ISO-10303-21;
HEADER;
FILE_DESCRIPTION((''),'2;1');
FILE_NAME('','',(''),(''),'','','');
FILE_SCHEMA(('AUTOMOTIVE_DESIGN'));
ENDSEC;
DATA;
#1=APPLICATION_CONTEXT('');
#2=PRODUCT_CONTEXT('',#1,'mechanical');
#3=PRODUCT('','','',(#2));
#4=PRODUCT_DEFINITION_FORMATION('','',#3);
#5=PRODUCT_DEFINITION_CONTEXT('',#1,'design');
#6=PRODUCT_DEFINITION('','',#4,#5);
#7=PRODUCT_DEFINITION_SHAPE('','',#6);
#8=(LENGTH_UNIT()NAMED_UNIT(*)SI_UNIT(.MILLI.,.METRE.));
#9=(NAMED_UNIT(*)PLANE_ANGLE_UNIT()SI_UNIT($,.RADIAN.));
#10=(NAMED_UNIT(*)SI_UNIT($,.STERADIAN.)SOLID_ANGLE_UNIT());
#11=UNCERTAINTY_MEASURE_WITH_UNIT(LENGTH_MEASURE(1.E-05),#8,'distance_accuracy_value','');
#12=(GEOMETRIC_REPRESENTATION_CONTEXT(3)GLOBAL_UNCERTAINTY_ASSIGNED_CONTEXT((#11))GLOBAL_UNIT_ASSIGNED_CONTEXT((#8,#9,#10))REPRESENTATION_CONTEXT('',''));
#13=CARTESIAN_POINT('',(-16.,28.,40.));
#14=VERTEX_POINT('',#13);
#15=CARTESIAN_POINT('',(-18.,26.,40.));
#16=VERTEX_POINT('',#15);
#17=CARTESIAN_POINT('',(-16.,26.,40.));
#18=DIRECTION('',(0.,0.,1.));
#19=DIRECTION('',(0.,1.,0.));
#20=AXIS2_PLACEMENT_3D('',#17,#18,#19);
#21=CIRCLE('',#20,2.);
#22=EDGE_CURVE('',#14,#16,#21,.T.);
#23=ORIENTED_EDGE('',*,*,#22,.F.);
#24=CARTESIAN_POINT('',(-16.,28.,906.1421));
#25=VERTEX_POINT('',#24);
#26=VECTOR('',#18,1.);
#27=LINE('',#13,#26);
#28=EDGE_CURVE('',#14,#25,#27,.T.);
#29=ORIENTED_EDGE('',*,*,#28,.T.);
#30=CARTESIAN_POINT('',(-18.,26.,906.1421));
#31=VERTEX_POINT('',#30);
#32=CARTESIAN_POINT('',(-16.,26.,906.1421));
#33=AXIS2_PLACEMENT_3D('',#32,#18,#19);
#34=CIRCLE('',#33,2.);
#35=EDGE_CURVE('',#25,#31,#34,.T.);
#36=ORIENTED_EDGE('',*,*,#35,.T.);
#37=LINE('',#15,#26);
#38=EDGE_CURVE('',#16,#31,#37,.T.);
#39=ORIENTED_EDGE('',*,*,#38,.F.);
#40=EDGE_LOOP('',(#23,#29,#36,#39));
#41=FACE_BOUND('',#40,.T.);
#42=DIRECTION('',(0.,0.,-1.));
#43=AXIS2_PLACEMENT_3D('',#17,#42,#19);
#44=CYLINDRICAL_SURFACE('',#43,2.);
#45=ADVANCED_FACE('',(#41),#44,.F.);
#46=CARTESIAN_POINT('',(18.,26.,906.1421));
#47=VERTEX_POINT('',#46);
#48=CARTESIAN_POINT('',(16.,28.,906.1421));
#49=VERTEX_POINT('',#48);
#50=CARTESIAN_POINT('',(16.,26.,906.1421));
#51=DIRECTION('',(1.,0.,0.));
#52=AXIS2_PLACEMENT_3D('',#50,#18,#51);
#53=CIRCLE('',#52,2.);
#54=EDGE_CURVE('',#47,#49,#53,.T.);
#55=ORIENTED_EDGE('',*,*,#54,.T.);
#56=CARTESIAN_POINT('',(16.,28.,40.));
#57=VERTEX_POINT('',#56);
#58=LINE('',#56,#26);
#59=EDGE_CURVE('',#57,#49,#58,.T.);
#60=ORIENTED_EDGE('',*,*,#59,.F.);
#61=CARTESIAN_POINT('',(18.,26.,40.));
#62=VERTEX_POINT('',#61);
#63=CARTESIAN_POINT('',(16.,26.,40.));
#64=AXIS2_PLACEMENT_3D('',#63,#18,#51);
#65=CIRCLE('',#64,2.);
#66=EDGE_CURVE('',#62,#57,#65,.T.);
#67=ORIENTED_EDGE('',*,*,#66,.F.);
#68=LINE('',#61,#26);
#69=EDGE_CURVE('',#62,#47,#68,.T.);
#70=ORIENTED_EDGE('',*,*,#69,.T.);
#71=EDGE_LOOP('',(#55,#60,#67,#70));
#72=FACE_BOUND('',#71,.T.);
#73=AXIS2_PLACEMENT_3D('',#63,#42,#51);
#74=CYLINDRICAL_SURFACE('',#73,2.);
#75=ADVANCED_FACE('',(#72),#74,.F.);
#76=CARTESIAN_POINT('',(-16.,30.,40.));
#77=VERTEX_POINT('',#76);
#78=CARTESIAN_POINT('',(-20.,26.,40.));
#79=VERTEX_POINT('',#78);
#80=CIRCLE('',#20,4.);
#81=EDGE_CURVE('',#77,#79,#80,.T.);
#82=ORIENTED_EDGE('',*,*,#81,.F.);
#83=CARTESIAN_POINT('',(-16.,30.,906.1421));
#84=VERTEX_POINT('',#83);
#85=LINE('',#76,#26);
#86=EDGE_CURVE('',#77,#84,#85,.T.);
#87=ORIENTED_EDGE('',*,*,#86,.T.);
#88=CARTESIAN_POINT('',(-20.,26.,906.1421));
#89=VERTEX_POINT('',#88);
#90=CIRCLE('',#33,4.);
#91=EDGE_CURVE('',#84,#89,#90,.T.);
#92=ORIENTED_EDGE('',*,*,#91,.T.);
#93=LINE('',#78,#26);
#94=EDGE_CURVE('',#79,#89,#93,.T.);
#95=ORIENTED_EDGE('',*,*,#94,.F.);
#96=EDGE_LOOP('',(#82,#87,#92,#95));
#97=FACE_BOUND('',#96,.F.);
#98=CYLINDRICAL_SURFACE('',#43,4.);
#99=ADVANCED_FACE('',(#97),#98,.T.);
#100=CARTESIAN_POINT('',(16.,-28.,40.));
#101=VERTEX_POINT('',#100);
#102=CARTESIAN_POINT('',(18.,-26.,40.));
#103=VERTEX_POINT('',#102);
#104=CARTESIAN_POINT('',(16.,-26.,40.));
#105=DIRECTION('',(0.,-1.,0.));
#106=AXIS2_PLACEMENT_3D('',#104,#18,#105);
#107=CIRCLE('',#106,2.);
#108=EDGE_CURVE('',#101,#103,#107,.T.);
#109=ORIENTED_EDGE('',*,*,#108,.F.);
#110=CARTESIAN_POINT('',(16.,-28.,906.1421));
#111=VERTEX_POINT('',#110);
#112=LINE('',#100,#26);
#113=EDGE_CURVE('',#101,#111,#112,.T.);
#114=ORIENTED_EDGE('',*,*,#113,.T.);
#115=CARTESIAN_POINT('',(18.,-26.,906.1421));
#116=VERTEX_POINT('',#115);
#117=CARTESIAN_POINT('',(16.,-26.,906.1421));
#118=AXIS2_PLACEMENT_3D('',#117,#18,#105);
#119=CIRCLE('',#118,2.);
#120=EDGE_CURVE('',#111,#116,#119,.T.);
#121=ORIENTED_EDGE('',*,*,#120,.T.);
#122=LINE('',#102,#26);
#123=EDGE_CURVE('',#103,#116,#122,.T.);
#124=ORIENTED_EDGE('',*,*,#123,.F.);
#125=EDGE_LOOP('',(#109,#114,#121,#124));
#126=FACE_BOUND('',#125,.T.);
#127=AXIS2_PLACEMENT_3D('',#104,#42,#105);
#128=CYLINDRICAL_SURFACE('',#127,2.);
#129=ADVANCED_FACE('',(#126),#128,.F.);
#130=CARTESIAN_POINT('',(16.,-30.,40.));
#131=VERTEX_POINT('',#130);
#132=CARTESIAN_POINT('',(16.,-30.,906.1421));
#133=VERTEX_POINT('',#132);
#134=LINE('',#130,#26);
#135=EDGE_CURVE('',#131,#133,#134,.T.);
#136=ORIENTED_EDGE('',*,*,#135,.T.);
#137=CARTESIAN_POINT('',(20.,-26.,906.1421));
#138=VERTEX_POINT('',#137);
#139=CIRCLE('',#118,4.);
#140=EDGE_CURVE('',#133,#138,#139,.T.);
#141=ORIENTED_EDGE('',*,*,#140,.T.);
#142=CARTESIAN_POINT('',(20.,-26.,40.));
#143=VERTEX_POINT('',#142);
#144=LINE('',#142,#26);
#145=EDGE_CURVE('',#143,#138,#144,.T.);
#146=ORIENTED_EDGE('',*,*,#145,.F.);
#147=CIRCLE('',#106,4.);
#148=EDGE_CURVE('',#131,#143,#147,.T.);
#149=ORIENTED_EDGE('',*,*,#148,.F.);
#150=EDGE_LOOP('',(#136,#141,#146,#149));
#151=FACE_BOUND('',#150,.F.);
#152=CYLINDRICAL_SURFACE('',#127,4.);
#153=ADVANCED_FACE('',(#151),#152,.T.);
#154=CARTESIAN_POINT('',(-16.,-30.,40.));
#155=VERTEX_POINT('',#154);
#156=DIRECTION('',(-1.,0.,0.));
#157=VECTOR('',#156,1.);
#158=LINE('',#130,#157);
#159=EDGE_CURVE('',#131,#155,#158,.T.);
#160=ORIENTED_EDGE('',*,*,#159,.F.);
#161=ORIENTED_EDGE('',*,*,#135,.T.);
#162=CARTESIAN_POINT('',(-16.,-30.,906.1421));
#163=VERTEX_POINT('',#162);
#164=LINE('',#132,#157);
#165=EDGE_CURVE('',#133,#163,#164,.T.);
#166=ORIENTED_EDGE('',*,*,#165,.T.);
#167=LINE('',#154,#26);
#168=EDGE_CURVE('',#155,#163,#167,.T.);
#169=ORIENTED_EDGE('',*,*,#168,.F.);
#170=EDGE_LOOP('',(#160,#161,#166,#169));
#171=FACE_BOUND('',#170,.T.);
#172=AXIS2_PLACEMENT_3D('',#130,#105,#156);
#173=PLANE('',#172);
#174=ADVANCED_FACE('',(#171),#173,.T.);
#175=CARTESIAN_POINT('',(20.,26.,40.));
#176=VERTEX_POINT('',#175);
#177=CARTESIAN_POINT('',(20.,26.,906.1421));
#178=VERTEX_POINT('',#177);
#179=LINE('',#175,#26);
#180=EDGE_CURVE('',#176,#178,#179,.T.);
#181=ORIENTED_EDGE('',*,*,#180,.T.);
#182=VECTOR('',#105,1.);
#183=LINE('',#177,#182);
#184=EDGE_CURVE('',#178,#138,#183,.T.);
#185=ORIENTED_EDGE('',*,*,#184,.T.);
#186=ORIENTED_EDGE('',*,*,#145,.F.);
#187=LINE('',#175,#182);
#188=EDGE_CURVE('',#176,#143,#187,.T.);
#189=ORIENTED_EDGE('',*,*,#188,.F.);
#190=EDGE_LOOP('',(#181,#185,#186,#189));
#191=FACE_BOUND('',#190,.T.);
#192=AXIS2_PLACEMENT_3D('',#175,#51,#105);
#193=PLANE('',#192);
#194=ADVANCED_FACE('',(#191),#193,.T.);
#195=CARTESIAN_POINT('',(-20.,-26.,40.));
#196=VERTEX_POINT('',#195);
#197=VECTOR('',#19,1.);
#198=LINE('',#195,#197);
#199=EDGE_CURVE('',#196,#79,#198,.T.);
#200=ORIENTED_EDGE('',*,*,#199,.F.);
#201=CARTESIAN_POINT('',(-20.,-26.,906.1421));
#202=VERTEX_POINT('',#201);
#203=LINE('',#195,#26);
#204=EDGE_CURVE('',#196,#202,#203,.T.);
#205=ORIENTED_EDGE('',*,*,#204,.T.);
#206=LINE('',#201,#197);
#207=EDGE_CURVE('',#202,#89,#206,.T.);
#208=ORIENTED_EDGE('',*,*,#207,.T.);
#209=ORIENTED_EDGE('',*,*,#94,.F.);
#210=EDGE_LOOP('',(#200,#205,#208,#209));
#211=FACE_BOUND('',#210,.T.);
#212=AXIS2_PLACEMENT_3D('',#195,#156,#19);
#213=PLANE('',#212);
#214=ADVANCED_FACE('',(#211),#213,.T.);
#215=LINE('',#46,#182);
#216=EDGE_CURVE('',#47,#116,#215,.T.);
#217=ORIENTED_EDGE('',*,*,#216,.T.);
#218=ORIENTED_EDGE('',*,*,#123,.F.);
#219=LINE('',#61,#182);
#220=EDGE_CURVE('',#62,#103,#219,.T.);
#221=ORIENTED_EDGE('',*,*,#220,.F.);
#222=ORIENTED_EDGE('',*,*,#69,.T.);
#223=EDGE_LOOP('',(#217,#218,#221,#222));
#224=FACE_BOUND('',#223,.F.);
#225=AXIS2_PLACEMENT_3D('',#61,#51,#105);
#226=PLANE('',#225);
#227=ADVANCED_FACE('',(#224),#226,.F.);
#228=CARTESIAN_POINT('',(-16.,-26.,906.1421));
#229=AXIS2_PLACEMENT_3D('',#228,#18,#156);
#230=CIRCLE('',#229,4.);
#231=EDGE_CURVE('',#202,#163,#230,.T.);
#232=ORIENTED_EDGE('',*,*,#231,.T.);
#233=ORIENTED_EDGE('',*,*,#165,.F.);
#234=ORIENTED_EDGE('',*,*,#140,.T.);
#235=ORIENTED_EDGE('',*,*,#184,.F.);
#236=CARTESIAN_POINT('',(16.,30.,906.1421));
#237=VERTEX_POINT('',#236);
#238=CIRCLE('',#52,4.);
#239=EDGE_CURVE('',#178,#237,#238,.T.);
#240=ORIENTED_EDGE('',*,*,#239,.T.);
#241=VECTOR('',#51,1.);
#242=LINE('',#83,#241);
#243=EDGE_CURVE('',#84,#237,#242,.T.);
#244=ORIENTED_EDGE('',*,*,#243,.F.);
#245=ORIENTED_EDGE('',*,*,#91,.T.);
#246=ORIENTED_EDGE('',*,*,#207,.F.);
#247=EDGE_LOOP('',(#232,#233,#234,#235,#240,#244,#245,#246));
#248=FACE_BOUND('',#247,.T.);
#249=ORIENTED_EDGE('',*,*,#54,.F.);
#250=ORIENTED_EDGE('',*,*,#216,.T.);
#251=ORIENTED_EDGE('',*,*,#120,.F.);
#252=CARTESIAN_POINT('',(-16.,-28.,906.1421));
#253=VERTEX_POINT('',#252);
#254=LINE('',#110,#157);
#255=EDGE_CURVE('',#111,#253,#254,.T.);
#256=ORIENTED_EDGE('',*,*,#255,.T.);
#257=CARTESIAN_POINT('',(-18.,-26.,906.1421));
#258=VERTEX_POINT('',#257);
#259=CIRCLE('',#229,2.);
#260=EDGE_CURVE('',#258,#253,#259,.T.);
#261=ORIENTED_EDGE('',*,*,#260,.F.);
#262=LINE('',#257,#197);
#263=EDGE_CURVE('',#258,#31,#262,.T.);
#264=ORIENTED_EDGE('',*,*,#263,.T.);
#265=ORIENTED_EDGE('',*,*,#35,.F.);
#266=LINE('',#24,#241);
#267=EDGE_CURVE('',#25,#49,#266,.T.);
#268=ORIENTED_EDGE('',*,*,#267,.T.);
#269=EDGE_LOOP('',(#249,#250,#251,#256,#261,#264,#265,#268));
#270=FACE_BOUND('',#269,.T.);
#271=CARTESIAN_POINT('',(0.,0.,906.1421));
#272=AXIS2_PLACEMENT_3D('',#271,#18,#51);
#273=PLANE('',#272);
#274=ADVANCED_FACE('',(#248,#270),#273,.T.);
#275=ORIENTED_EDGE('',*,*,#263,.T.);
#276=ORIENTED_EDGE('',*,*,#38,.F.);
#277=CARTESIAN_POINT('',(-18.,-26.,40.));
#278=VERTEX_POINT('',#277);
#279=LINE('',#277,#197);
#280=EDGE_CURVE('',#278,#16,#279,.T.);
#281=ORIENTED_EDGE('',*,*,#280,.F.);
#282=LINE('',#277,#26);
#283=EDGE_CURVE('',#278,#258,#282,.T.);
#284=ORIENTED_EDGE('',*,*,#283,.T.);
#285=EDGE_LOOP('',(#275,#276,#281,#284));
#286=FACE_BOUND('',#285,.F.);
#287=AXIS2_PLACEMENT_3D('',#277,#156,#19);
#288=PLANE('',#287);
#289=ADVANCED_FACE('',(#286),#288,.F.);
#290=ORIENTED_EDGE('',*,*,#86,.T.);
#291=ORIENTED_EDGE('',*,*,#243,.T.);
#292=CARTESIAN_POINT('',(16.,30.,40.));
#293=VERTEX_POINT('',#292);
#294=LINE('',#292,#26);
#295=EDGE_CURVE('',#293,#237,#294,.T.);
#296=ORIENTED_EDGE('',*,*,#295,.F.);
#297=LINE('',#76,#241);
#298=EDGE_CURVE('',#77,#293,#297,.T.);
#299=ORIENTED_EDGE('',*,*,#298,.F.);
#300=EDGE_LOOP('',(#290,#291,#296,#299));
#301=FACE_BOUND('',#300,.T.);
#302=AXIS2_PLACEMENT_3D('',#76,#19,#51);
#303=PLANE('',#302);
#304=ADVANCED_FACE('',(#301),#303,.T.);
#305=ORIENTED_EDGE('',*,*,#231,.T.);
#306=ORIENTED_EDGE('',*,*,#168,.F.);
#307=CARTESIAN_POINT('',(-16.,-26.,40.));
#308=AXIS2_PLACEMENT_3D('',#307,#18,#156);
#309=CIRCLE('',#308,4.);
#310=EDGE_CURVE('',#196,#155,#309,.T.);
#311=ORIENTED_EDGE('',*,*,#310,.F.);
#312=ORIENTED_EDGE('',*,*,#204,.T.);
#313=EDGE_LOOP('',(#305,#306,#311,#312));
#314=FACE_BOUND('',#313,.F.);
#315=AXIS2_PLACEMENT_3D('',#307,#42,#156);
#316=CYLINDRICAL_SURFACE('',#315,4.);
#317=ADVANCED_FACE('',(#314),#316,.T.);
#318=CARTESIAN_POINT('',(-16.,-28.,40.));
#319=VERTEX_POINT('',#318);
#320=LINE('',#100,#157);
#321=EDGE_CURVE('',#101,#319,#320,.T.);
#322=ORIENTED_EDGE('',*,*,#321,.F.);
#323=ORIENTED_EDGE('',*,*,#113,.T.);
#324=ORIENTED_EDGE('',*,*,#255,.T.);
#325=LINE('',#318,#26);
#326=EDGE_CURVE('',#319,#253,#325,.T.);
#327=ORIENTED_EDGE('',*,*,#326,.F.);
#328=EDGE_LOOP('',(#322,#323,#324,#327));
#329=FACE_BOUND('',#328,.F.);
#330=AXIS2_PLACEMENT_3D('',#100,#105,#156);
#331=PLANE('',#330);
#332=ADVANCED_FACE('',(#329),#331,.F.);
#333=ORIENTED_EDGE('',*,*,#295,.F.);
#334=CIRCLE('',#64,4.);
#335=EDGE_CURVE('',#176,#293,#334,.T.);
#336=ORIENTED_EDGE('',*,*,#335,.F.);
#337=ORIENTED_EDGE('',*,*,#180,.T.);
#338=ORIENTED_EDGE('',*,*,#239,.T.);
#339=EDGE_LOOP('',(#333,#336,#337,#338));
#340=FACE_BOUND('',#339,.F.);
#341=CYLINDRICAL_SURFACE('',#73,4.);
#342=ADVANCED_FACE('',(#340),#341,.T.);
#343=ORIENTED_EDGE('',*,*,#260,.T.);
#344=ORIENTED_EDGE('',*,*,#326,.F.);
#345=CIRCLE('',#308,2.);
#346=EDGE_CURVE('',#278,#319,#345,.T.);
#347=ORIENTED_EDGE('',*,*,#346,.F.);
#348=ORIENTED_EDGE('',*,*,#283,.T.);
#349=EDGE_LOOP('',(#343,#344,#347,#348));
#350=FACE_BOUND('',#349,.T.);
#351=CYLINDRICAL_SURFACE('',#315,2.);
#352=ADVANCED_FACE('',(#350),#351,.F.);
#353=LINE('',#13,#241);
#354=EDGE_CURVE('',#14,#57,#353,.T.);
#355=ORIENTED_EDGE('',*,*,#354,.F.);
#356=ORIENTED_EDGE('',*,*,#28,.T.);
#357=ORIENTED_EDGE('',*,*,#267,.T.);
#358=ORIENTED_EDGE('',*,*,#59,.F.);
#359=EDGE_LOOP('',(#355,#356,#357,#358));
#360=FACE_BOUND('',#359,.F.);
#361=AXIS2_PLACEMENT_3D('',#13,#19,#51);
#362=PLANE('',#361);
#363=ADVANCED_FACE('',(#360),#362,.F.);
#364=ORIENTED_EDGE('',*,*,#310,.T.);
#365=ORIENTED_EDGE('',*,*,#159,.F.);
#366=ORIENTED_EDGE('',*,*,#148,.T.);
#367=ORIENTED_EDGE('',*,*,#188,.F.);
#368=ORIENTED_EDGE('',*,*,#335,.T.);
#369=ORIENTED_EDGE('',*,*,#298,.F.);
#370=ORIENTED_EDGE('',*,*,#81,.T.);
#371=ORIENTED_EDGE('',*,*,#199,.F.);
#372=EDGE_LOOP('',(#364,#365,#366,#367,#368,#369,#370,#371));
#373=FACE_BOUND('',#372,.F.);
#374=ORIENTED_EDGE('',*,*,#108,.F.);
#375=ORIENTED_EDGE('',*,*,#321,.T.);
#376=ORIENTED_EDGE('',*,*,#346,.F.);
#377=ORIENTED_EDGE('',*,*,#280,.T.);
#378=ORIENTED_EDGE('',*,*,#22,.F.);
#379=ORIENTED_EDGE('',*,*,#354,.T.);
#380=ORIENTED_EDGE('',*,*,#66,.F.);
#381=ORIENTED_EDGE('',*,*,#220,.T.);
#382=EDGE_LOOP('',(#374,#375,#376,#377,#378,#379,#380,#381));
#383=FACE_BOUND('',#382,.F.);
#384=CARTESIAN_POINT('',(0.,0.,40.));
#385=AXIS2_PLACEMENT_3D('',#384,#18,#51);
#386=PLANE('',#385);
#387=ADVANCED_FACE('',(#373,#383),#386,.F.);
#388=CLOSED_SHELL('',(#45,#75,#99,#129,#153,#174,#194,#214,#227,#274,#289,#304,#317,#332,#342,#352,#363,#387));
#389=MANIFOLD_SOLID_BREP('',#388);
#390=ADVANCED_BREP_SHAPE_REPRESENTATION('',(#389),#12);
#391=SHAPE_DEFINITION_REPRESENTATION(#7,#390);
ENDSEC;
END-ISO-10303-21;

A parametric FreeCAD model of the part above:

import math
import FreeCAD as App
import Part
import Sketcher

doc = App.newDocument("Part")
body = doc.addObject("PartDesign::Body", "Body")

# Sketch on XY plane
sketch1 = body.newObject("Sketcher::SketchObject", "Sketch")
sketch1.AttachmentSupport = (doc.getObject("XY_Plane"), [""])
sketch1.MapMode = "FlatFace"
sketch1.AttachmentOffset = App.Placement(App.Vector(0, 0, 40), App.Rotation())
sketch1.addGeometry([
    Part.LineSegment(App.Vector(-20, 26, 0), App.Vector(-20, -26, 0)),  # 0
    Part.ArcOfCircle(Part.Circle(App.Vector(-16, -26, 0), App.Vector(0, 0, 1), 4), math.radians(180), math.radians(270)),  # 1
    Part.LineSegment(App.Vector(-16, -30, 0), App.Vector(16, -30, 0)),  # 2
    Part.ArcOfCircle(Part.Circle(App.Vector(16, -26, 0), App.Vector(0, 0, 1), 4), math.radians(-90), math.radians(0)),  # 3
    Part.LineSegment(App.Vector(20, -26, 0), App.Vector(20, 26, 0)),  # 4
    Part.ArcOfCircle(Part.Circle(App.Vector(16, 26, 0), App.Vector(0, 0, 1), 4), math.radians(0), math.radians(90)),  # 5
    Part.LineSegment(App.Vector(16, 30, 0), App.Vector(-16, 30, 0)),  # 6
    Part.ArcOfCircle(Part.Circle(App.Vector(-16, 26, 0), App.Vector(0, 0, 1), 4), math.radians(90), math.radians(180)),  # 7
    Part.ArcOfCircle(Part.Circle(App.Vector(-16, 26, 0), App.Vector(0, 0, 1), 2), math.radians(90), math.radians(180)),  # 8
    Part.LineSegment(App.Vector(-16, 28, 0), App.Vector(16, 28, 0)),  # 9
    Part.ArcOfCircle(Part.Circle(App.Vector(16, 26, 0), App.Vector(0, 0, 1), 2), math.radians(0), math.radians(90)),  # 10
    Part.LineSegment(App.Vector(18, 26, 0), App.Vector(18, -26, 0)),  # 11
    Part.ArcOfCircle(Part.Circle(App.Vector(16, -26, 0), App.Vector(0, 0, 1), 2), math.radians(-90), math.radians(0)),  # 12
    Part.LineSegment(App.Vector(16, -28, 0), App.Vector(-16, -28, 0)),  # 13
    Part.ArcOfCircle(Part.Circle(App.Vector(-16, -26, 0), App.Vector(0, 0, 1), 2), math.radians(180), math.radians(270)),  # 14
    Part.LineSegment(App.Vector(-18, -26, 0), App.Vector(-18, 26, 0)),  # 15
], False)
sketch1.addConstraint([
    Sketcher.Constraint("Tangent", 0, 2, 1, 1),
    Sketcher.Constraint("Tangent", 1, 2, 2, 1),
    Sketcher.Constraint("Tangent", 2, 2, 3, 1),
    Sketcher.Constraint("Tangent", 3, 2, 4, 1),
    Sketcher.Constraint("Tangent", 4, 2, 5, 1),
    Sketcher.Constraint("Tangent", 5, 2, 6, 1),
    Sketcher.Constraint("Tangent", 6, 2, 7, 1),
    Sketcher.Constraint("Tangent", 7, 2, 0, 1),
    Sketcher.Constraint("Tangent", 8, 1, 9, 1),
    Sketcher.Constraint("Tangent", 9, 2, 10, 2),
    Sketcher.Constraint("Tangent", 10, 1, 11, 1),
    Sketcher.Constraint("Tangent", 11, 2, 12, 2),
    Sketcher.Constraint("Tangent", 12, 1, 13, 1),
    Sketcher.Constraint("Tangent", 13, 2, 14, 2),
    Sketcher.Constraint("Tangent", 14, 1, 15, 1),
    Sketcher.Constraint("Tangent", 15, 2, 8, 2),
    Sketcher.Constraint("Vertical", 0),
    Sketcher.Constraint("Horizontal", 2),
    Sketcher.Constraint("Vertical", 4),
    Sketcher.Constraint("Horizontal", 6),
    Sketcher.Constraint("Horizontal", 9),
    Sketcher.Constraint("Vertical", 11),
    Sketcher.Constraint("Horizontal", 13),
    Sketcher.Constraint("Vertical", 15),
    Sketcher.Constraint("Coincident", 8, 3, 7, 3),
    Sketcher.Constraint("Coincident", 10, 3, 5, 3),
    Sketcher.Constraint("Coincident", 12, 3, 3, 3),
    Sketcher.Constraint("Equal", 1, 3),
    Sketcher.Constraint("Equal", 3, 5),
    Sketcher.Constraint("Equal", 5, 7),
    Sketcher.Constraint("Equal", 12, 14),
    Sketcher.Constraint("Symmetric", 1, 3, 5, 3, -1, 1),
    Sketcher.Constraint("Radius", 1, 4.0),
    Sketcher.Constraint("Radius", 8, 2.0),
    Sketcher.Constraint("DistanceX", 0, 2, -1, 1, 20.0),
    Sketcher.Constraint("DistanceY", 1, 2, -1, 1, 30.0),
])
pad1 = body.newObject("PartDesign::Pad", "Pad")
pad1.Profile = sketch1
pad1.Length = 866.1421

doc.recompute()
